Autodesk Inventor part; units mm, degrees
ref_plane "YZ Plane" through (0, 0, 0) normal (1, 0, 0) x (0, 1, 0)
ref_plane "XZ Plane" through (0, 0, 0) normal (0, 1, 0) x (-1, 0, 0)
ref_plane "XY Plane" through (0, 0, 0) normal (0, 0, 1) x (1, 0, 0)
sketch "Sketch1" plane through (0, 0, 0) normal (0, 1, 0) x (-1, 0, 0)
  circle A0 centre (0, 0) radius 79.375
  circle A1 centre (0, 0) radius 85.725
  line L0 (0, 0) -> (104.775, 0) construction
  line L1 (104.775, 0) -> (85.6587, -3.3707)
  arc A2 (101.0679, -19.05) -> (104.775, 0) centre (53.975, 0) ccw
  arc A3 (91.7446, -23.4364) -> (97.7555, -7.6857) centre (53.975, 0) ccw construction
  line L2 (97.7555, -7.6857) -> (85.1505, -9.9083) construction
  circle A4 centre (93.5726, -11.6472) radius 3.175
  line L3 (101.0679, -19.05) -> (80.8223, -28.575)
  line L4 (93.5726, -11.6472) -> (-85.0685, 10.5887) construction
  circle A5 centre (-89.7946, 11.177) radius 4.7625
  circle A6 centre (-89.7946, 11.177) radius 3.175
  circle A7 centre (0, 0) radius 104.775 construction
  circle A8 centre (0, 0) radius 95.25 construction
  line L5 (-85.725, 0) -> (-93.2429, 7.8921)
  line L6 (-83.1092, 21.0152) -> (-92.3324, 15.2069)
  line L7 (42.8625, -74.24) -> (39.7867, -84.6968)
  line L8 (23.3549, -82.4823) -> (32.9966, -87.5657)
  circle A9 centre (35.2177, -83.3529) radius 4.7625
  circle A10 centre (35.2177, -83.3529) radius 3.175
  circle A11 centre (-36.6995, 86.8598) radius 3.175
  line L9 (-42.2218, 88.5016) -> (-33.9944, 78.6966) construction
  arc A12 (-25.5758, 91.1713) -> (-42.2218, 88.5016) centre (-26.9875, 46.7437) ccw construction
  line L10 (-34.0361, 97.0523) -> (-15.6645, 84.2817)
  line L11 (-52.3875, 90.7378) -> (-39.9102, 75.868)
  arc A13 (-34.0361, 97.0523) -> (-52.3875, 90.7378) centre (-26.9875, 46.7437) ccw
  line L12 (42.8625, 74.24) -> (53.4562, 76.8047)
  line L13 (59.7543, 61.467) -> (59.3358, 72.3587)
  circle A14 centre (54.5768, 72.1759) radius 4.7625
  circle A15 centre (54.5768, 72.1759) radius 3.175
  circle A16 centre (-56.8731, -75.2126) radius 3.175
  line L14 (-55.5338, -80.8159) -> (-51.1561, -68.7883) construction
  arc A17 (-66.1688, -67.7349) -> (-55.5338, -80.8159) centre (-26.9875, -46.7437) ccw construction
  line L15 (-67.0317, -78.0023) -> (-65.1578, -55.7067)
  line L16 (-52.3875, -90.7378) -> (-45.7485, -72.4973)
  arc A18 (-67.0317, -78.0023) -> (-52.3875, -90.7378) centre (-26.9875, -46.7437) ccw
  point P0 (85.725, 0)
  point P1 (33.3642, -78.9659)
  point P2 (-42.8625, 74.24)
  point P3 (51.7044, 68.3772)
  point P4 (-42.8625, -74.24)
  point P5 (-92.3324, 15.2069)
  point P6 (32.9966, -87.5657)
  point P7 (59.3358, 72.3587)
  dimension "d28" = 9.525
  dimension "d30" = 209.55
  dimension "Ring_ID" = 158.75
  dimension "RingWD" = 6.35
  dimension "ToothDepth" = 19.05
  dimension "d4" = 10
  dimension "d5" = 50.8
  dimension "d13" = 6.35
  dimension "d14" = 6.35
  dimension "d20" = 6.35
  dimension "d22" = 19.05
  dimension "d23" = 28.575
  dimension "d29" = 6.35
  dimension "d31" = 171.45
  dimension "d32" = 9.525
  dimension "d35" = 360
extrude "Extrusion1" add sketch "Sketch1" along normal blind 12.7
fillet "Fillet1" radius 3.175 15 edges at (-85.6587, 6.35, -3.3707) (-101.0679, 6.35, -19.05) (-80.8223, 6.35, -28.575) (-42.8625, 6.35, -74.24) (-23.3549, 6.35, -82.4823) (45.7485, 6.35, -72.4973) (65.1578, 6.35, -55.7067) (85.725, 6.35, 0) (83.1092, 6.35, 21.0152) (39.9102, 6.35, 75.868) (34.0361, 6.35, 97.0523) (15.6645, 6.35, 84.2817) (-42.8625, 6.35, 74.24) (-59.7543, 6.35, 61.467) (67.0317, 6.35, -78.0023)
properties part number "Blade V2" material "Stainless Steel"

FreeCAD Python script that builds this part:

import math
import FreeCAD as App
import Part
import Sketcher

V = App.Vector
Q = App.Units.Quantity


def edges_at(feature, points):
    """Names of the edges that pass closest to the given points."""
    edges = feature.Shape.Edges
    near = lambda p: min(range(len(edges)), key=lambda i: edges[i].distToShape(Part.Vertex(*p))[0])
    return sorted({f"Edge{near(p) + 1}" for p in points})

doc = App.newDocument("Part")
params = doc.addObject("Spreadsheet::Sheet", "Params")
for row, (alias, value) in enumerate([
    ("sketch1_radius", "2 in"),
    ("sketch1_diameter", "6.25 in"),
    ("sketch1_diameter2", "0.25 in"),
    ("sketch1_radius2", "3.375 in"),
    ("sketch1_radius3", "0.1875 in"),
    ("pad1_length", "0.5 in"),
    ("fillet_radius", "0.125 in"),
], start=1):
    params.set(f"A{row}", alias)
    params.set(f"B{row}", "=" + value)
    params.setAlias(f"B{row}", alias)

body = doc.addObject("PartDesign::Body", "Body")

sketch1 = body.newObject("Sketcher::SketchObject", "Sketch")
sketch1.AttachmentSupport = (doc.getObject("XZ_Plane"), [""])
sketch1.MapMode = "FlatFace"
sketch1.addGeometry([
    Part.ArcOfCircle(Part.Circle(V(0, 0, 0), V(0, 0, 1), 85.725), math.radians(134.190539), math.radians(182.253446)),
    Part.LineSegment(V(-59.7543, 61.467, 0), V(-59.3358, 72.3587, 0)),
    Part.ArcOfCircle(Part.Circle(V(-54.5768, 72.1759, 0), V(0, 0, 1), 4.7625), math.radians(76.390933), math.radians(177.800269)),
    Part.LineSegment(V(-53.4562, 76.8047, 0), V(-42.8625, 74.24, 0)),
    Part.ArcOfCircle(Part.Circle(V(0, 0, 0), V(0, 0, 1), 85.725), math.radians(79.471209), math.radians(120.000009)),
    Part.LineSegment(V(15.6645, 84.2817, 0), V(34.0361, 97.0523, 0)),
    Part.ArcOfCircle(Part.Circle(V(26.9875, 46.7437, 0), V(0, 0, 1), 50.79998), math.radians(60.000005), math.radians(82.024362)),
    Part.LineSegment(V(52.3875, 90.7378, 0), V(39.9102, 75.868, 0)),
    Part.ArcOfCircle(Part.Circle(V(0, 0, 0), V(0, 0, 1), 85.725), math.radians(14.190501), math.radians(62.253481)),
    Part.LineSegment(V(83.1092, 21.0152, 0), V(92.3324, 15.2069, 0)),
    Part.ArcOfCircle(Part.Circle(V(89.7946, 11.177, 0), V(0, 0, 1), 4.7625), math.radians(-43.60983), math.radians(57.799628)),
    Part.LineSegment(V(93.2429, 7.8921, 0), V(85.725, 0, 0)),
    Part.ArcOfCircle(Part.Circle(V(0, 0, 0), V(0, 0, 1), 85.725), math.radians(-40.528807), math.radians(0)),
    Part.LineSegment(V(65.1578, -55.7067, 0), V(67.0317, -78.0023, 0)),
    Part.ArcOfCircle(Part.Circle(V(26.9875, -46.7437, 0), V(0, 0, 1), 50.799981), math.radians(-60.000005), math.radians(-37.975685)),
    Part.LineSegment(V(52.3875, -90.7378, 0), V(45.7485, -72.4973, 0)),
    Part.ArcOfCircle(Part.Circle(V(0, 0, 0), V(0, 0, 1), 85.725), math.radians(-105.809493), math.radians(-57.746546)),
    Part.LineSegment(V(-23.3549, -82.4823, 0), V(-32.9966, -87.5657, 0)),
    Part.ArcOfCircle(Part.Circle(V(-35.2177, -83.3529, 0), V(0, 0, 1), 4.7625), math.radians(-163.609577), math.radians(-62.200612)),
    Part.LineSegment(V(-39.7867, -84.6968, 0), V(-42.8625, -74.24, 0)),
    Part.ArcOfCircle(Part.Circle(V(0, 0, 0), V(0, 0, 1), 85.725), math.radians(-160.528778), math.radians(-120.000009)),
    Part.LineSegment(V(-80.8223, -28.575, 0), V(-101.0679, -19.05, 0)),
    Part.ArcOfCircle(Part.Circle(V(-53.975, 0, 0), V(0, 0, 1), 50.800037), math.radians(180), math.radians(202.024296)),
    Part.LineSegment(V(-104.775, 0, 0), V(-85.6587, -3.3707, 0)),
    Part.Circle(V(0, 0, 0), V(0, 0, 1), 79.375),
    Part.Circle(V(-93.5726, -11.6472, 0), V(0, 0, 1), 3.175),
    Part.Circle(V(56.8731, -75.2126, 0), V(0, 0, 1), 3.175),
    Part.Circle(V(36.6995, 86.8598, 0), V(0, 0, 1), 3.175),
    Part.Circle(V(-35.2177, -83.3529, 0), V(0, 0, 1), 3.175),
    Part.Circle(V(89.7946, 11.177, 0), V(0, 0, 1), 3.175),
    Part.Circle(V(-54.5768, 72.1759, 0), V(0, 0, 1), 3.175),
], False)
sketch1.addConstraint([
    Sketcher.Constraint("Coincident", 0, 1, 1, 1),
    Sketcher.Constraint("Tangent", 1, 2, 2, 2),
    Sketcher.Constraint("Tangent", 2, 1, 3, 1),
    Sketcher.Constraint("Coincident", 3, 2, 4, 2),
    Sketcher.Constraint("Coincident", 4, 1, 5, 1),
    Sketcher.Constraint("Coincident", 5, 2, 6, 2),
    Sketcher.Constraint("Coincident", 6, 1, 7, 1),
    Sketcher.Constraint("Coincident", 7, 2, 8, 2),
    Sketcher.Constraint("Coincident", 8, 1, 9, 1),
    Sketcher.Constraint("Tangent", 9, 2, 10, 2),
    Sketcher.Constraint("Tangent", 10, 1, 11, 1),
    Sketcher.Constraint("Coincident", 11, 2, 12, 2),
    Sketcher.Constraint("Coincident", 12, 1, 13, 1),
    Sketcher.Constraint("Coincident", 13, 2, 14, 2),
    Sketcher.Constraint("Coincident", 14, 1, 15, 1),
    Sketcher.Constraint("Coincident", 15, 2, 16, 2),
    Sketcher.Constraint("Coincident", 16, 1, 17, 1),
    Sketcher.Constraint("Tangent", 17, 2, 18, 2),
    Sketcher.Constraint("Tangent", 18, 1, 19, 1),
    Sketcher.Constraint("Coincident", 19, 2, 20, 2),
    Sketcher.Constraint("Coincident", 20, 1, 21, 1),
    Sketcher.Constraint("Coincident", 21, 2, 22, 2),
    Sketcher.Constraint("Coincident", 22, 1, 23, 1),
    Sketcher.Constraint("Coincident", 23, 2, 0, 2),
    Sketcher.Constraint("Coincident", 0, 3, -1, 1),
    Sketcher.Constraint("Coincident", 4, 3, -1, 1),
    Sketcher.Constraint("Coincident", 8, 3, -1, 1),
    Sketcher.Constraint("Coincident", 12, 3, -1, 1),
    Sketcher.Constraint("Coincident", 16, 3, -1, 1),
    Sketcher.Constraint("Coincident", 20, 3, -1, 1),
    Sketcher.Constraint("Coincident", 24, 3, -1, 1),
    Sketcher.Constraint("Coincident", 28, 3, 18, 3),
    Sketcher.Constraint("Coincident", 29, 3, 10, 3),
    Sketcher.Constraint("Coincident", 30, 3, 2, 3),
    Sketcher.Constraint("Equal", 0, 4),
    Sketcher.Constraint("Equal", 4, 8),
    Sketcher.Constraint("Equal", 2, 10),
    Sketcher.Constraint("Equal", 8, 12),
    Sketcher.Constraint("Equal", 6, 14),
    Sketcher.Constraint("Equal", 12, 16),
    Sketcher.Constraint("Equal", 10, 18),
    Sketcher.Constraint("Equal", 16, 20),
    Sketcher.Constraint("Equal", 14, 22),
    Sketcher.Constraint("Equal", 25, 26),
    Sketcher.Constraint("Equal", 26, 27),
    Sketcher.Constraint("Equal", 27, 28),
    Sketcher.Constraint("Equal", 28, 29),
    Sketcher.Constraint("Equal", 29, 30),
    Sketcher.Constraint("Symmetric", 6, 3, 14, 3, -1),
    Sketcher.Constraint("PointOnObject", 22, 3, -1),
    Sketcher.Constraint("PointOnObject", 11, 2, -1),
    Sketcher.Constraint("PointOnObject", 22, 1, -1),
    Sketcher.Constraint("Vertical", 6, 1, 14, 1),
    Sketcher.Constraint("Vertical", 3, 2, 19, 2),
    Sketcher.Constraint("Equal", 1, 3),
    Sketcher.Constraint("Equal", 3, 9),
    Sketcher.Constraint("Equal", 9, 11),
    Sketcher.Constraint("Equal", 5, 13),
    Sketcher.Constraint("Equal", 7, 15),
    Sketcher.Constraint("Equal", 11, 17),
    Sketcher.Constraint("Equal", 17, 19),
    Sketcher.Constraint("Equal", 13, 21),
    Sketcher.Constraint("Equal", 15, 23),
    Sketcher.Constraint("Radius", 6, Q("2 in")),
    Sketcher.Constraint("Diameter", 24, Q("6.25 in")),
    Sketcher.Constraint("Diameter", 25, Q("0.25 in")),
    Sketcher.Constraint("Angle", 23, Q("-10 deg")),
    Sketcher.Constraint("Radius", 0, Q("3.375 in")),
    Sketcher.Constraint("Radius", 2, Q("0.1875 in")),
    Sketcher.Constraint("DistanceY", 21, 2, -1, 1, Q("0.75 in")),
    Sketcher.Constraint("DistanceY", 20, 1, -1, 1, Q("1.125 in")),
    Sketcher.Constraint("Angle", 7, Q("-130.0001 deg")),
    Sketcher.Constraint("Angle", 15, Q("110 deg")),
    Sketcher.Constraint("DistanceX", 6, 3, 6, 1, Q("1 in")),
    Sketcher.Constraint("Angle", 1, Q("87.7996 deg")),
    Sketcher.Constraint("Angle", 9, Q("-32.2006 deg")),
    Sketcher.Constraint("Angle", 17, Q("-152.2004 deg")),
    Sketcher.Constraint("DistanceX", -1, 1, 5, 2, Q("1.34 in")),
    Sketcher.Constraint("Angle", 3, Q("-13.6093 deg")),
    Sketcher.Constraint("Angle", 11, Q("-133.609 deg")),
    Sketcher.Constraint("DistanceX", -1, 1, 6, 3, Q("1.0625 in")),
    Sketcher.Constraint("DistanceX", -1, 1, 26, 3, Q("2.2391 in")),
    Sketcher.Constraint("DistanceY", 2, 3, 27, 3, Q("0.5781 in")),
    Sketcher.Constraint("DistanceX", 27, 3, 7, 2, Q("0.1264 in")),
    Sketcher.Constraint("DistanceY", 12, 1, 10, 1, Q("2.5039 in")),
    Sketcher.Constraint("DistanceY", 26, 3, 15, 2, Q("0.1069 in")),
    Sketcher.Constraint("DistanceX", 21, 2, 25, 3, Q("0.2951 in")),
    Sketcher.Constraint("DistanceY", 25, 3, -1, 1, Q("11.6472 mm")),
])
sketch1.setExpression("Constraints[63]", "Params.sketch1_radius")
sketch1.setExpression("Constraints[64]", "Params.sketch1_diameter")
sketch1.setExpression("Constraints[65]", "Params.sketch1_diameter2")
sketch1.setExpression("Constraints[67]", "Params.sketch1_radius2")
sketch1.setExpression("Constraints[68]", "Params.sketch1_radius3")
pad1 = body.newObject("PartDesign::Pad", "Pad")
pad1.Profile = sketch1
pad1.setExpression("Length", "Params.pad1_length")
pad1.Reversed = True
doc.recompute()

fillet = body.newObject("PartDesign::Fillet", "Fillet")
fillet.Base = (pad1, edges_at(pad1, [
    (-85.659, 6.35, -3.371),
    (-101.068, 6.35, -19.05),
    (-80.822, 6.35, -28.575),
    (-42.862, 6.35, -74.24),
    (-23.355, 6.35, -82.482),
    (45.748, 6.35, -72.497),
    (65.158, 6.35, -55.707),
    (85.725, 6.35, 0),
    (83.109, 6.35, 21.015),
    (39.91, 6.35, 75.868),
    (34.036, 6.35, 97.052),
    (15.665, 6.35, 84.282),
    (-42.862, 6.35, 74.24),
    (-59.754, 6.35, 61.467),
    (67.032, 6.35, -78.002),
]))
fillet.setExpression("Radius", "Params.fillet_radius")

doc.recompute()
